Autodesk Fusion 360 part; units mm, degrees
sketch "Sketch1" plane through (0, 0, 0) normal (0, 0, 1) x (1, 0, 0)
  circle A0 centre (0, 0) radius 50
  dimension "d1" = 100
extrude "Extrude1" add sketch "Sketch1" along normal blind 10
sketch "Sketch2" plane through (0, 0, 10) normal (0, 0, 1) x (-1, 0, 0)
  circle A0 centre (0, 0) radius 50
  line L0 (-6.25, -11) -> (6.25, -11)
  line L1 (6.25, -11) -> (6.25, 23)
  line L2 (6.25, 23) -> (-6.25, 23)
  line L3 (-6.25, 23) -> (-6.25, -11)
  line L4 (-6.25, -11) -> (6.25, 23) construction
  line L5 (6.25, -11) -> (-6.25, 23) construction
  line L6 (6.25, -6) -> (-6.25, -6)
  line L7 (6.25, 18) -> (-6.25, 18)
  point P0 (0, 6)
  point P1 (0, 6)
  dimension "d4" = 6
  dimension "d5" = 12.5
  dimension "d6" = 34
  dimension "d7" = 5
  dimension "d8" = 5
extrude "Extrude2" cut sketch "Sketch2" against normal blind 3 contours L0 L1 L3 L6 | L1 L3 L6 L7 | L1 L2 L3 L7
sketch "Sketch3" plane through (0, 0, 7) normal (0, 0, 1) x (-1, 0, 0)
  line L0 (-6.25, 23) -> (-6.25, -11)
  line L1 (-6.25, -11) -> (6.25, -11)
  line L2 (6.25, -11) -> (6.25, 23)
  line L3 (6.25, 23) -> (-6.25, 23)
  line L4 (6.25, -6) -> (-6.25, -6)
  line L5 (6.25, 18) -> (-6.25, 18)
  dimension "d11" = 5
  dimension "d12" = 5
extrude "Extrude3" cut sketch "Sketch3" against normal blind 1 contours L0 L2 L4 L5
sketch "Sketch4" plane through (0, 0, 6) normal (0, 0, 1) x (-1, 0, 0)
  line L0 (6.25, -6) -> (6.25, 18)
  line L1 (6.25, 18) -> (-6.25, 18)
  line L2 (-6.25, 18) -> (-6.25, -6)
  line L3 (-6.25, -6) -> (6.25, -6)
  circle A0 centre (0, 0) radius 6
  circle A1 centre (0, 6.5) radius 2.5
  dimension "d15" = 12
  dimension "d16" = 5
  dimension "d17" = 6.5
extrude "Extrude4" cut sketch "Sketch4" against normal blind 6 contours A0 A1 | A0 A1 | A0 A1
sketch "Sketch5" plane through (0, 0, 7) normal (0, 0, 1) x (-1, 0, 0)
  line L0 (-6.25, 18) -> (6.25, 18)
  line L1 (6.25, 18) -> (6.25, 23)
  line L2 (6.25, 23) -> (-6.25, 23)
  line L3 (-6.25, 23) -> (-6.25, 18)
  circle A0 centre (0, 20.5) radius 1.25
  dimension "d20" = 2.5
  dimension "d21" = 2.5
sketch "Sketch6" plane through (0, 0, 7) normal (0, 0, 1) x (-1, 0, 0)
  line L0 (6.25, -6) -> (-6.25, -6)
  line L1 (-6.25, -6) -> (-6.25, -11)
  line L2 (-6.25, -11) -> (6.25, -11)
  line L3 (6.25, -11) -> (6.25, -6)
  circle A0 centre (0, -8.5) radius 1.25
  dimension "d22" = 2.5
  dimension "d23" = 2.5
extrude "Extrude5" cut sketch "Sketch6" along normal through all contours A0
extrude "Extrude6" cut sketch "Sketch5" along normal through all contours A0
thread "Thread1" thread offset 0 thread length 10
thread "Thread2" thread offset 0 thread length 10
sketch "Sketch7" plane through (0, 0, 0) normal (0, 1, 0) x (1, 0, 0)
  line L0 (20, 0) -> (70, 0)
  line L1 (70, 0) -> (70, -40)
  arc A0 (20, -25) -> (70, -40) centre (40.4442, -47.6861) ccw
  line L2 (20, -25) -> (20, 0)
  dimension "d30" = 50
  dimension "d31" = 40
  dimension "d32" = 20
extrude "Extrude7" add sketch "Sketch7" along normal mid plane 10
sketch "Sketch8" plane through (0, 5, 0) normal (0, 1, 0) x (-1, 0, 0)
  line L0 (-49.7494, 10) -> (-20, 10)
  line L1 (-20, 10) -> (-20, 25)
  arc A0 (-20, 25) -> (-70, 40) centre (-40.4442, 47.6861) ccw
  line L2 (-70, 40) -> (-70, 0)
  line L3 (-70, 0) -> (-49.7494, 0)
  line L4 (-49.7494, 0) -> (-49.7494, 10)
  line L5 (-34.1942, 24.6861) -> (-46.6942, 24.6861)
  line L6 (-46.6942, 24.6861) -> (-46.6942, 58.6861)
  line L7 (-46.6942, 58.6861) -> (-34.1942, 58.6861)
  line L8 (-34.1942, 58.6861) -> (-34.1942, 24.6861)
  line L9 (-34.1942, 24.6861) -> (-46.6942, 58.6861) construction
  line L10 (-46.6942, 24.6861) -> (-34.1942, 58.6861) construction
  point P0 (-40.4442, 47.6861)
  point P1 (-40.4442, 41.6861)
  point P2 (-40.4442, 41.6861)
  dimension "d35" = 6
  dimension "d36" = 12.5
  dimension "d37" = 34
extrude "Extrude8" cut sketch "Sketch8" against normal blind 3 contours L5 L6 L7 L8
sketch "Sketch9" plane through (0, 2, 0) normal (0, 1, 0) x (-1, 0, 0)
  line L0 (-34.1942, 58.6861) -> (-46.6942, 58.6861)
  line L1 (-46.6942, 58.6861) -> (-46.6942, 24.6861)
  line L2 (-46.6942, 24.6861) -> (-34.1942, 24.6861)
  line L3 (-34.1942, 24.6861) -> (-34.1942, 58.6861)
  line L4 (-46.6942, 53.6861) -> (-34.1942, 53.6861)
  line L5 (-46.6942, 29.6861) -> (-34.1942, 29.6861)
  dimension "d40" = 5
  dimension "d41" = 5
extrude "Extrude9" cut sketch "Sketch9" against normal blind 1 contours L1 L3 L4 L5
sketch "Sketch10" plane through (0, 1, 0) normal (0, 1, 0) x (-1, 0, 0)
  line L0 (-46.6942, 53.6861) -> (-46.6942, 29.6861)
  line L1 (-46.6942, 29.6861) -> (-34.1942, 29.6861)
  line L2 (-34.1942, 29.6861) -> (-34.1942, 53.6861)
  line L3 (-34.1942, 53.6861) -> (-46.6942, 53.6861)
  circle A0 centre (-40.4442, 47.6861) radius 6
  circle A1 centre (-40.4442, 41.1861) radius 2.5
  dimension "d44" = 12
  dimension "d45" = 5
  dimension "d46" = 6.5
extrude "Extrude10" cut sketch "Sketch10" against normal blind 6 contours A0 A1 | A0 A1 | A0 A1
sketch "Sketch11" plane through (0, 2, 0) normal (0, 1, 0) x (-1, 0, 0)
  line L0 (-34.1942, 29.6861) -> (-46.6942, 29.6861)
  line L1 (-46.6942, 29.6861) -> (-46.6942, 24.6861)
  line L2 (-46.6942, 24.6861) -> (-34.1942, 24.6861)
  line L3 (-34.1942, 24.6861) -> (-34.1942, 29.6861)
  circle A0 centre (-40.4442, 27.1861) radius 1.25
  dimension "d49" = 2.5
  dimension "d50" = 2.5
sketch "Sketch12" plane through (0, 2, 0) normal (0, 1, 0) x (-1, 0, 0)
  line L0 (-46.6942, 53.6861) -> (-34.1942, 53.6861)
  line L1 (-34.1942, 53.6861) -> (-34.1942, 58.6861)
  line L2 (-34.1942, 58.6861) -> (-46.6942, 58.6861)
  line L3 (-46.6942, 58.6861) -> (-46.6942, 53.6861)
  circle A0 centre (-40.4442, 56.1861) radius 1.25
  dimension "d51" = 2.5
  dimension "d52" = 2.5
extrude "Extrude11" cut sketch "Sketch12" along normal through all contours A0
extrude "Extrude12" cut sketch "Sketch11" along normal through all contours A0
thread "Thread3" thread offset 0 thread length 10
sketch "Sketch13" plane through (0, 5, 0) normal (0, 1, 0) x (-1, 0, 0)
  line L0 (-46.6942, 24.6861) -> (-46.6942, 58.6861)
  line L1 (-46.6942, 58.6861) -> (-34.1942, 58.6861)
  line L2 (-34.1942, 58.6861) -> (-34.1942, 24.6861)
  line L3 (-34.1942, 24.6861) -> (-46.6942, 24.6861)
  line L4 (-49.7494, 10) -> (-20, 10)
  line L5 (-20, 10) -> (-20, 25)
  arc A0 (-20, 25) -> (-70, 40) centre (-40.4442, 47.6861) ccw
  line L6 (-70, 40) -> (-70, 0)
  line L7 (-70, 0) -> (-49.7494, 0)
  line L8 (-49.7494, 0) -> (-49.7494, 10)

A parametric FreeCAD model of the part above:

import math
import FreeCAD as App
import Part
import Sketcher
from FreeCAD import Vector


def add_polygon(sketch, points):
    """Adds a closed chain of lines whose ends are joined by coincident constraints."""
    first, n = sketch.GeometryCount, len(points)
    for a, b in zip(points, points[1:] + points[:1]):
        sketch.addGeometry(Part.LineSegment(App.Vector(*a, 0), App.Vector(*b, 0)), False)
    for i in range(n):
        sketch.addConstraint(Sketcher.Constraint("Coincident", first + i, 2, first + (i + 1) % n, 1))

doc = App.newDocument("Part")
body = doc.addObject("PartDesign::Body", "Body")

# Sketch on XY plane
sketch1 = body.newObject("Sketcher::SketchObject", "Sketch")
sketch1.AttachmentSupport = (doc.getObject("XY_Plane"), [""])
sketch1.MapMode = "FlatFace"
sketch1.addGeometry(Part.Circle(Vector(0, 0, 0), Vector(0, 0, 1), 50), False)
sketch1.addConstraint(Sketcher.Constraint("Coincident", 0, 3, -1, 1))
sketch1.addConstraint(Sketcher.Constraint("Diameter", 0, 100.0))
pad1 = body.newObject("PartDesign::Pad", "Pad")
pad1.Profile = sketch1
pad1.Length = 10

# Sketch on XY plane
sketch2 = body.newObject("Sketcher::SketchObject", "Sketch001")
sketch2.AttachmentSupport = (doc.getObject("XY_Plane"), [""])
sketch2.MapMode = "FlatFace"
sketch2.AttachmentOffset = App.Placement(Vector(0, 0, 10), App.Rotation())
add_polygon(sketch2, [(6.25, 11), (-6.25, 11), (-6.25, -23), (6.25, -23)])  # lines 0-3
sketch2.addConstraint(Sketcher.Constraint("Horizontal", 0))
sketch2.addConstraint(Sketcher.Constraint("Vertical", 1))
sketch2.addConstraint(Sketcher.Constraint("Horizontal", 2))
sketch2.addConstraint(Sketcher.Constraint("Vertical", 3))
sketch2.addConstraint(Sketcher.Constraint("DistanceY", 1, 2, 1, 1, 34.0))
sketch2.addConstraint(Sketcher.Constraint("DistanceX", 0, 2, 0, 1, 12.5))
sketch2.addConstraint(Sketcher.Constraint("DistanceY", -1, 1, 0, 2, 11.0))
sketch2.addConstraint(Sketcher.Constraint("DistanceX", 0, 2, -1, 1, 6.25))
pocket1 = body.newObject("PartDesign::Pocket", "Pocket")
pocket1.Profile = sketch2
pocket1.Length = 3

# Sketch on XY plane
sketch3 = body.newObject("Sketcher::SketchObject", "Sketch002")
sketch3.AttachmentSupport = (doc.getObject("XY_Plane"), [""])
sketch3.MapMode = "FlatFace"
sketch3.AttachmentOffset = App.Placement(Vector(0, 0, 7), App.Rotation())
add_polygon(sketch3, [(-6.25, -18), (6.25, -18), (6.25, 6), (-6.25, 6)])  # lines 0-3
sketch3.addConstraint(Sketcher.Constraint("Horizontal", 0))
sketch3.addConstraint(Sketcher.Constraint("Vertical", 1))
sketch3.addConstraint(Sketcher.Constraint("Horizontal", 2))
sketch3.addConstraint(Sketcher.Constraint("Vertical", 3))
sketch3.addConstraint(Sketcher.Constraint("DistanceY", 1, 1, 1, 2, 24.0))
sketch3.addConstraint(Sketcher.Constraint("DistanceX", 0, 1, 0, 2, 12.5))
sketch3.addConstraint(Sketcher.Constraint("DistanceY", 0, 2, -1, 1, 18.0))
sketch3.addConstraint(Sketcher.Constraint("DistanceX", -1, 1, 0, 2, 6.25))
pocket2 = body.newObject("PartDesign::Pocket", "Pocket001")
pocket2.Profile = sketch3
pocket2.Length = 1

# Sketch on XY plane
sketch4 = body.newObject("Sketcher::SketchObject", "Sketch003")
sketch4.AttachmentSupport = (doc.getObject("XY_Plane"), [""])
sketch4.MapMode = "FlatFace"
sketch4.AttachmentOffset = App.Placement(Vector(0, 0, 6), App.Rotation())
sketch4.addGeometry(Part.ArcOfCircle(Part.Circle(Vector(0, 0, 0), Vector(0, 0, 1), 6), math.radians(-67.380135), math.radians(247.380135)), False)
sketch4.addGeometry(Part.ArcOfCircle(Part.Circle(Vector(0, -6.5, 0), Vector(0, 0, 1), 2.5), math.radians(157.380135), math.radians(382.619865)), False)
sketch4.addConstraint(Sketcher.Constraint("Coincident", 0, 1, 1, 2))
sketch4.addConstraint(Sketcher.Constraint("Coincident", 1, 1, 0, 2))
sketch4.addConstraint(Sketcher.Constraint("Coincident", 0, 3, -1, 1))
sketch4.addConstraint(Sketcher.Constraint("PointOnObject", 1, 3, -2))
sketch4.addConstraint(Sketcher.Constraint("Radius", 0, 6.0))
sketch4.addConstraint(Sketcher.Constraint("Radius", 1, 2.5))
sketch4.addConstraint(Sketcher.Constraint("DistanceY", 1, 3, -1, 1, 6.5))
pocket3 = body.newObject("PartDesign::Pocket", "Pocket002")
pocket3.Profile = sketch4
pocket3.Length = 6

# Sketch on XY plane
sketch5 = body.newObject("Sketcher::SketchObject", "Sketch004")
sketch5.AttachmentSupport = (doc.getObject("XY_Plane"), [""])
sketch5.MapMode = "FlatFace"
sketch5.AttachmentOffset = App.Placement(Vector(0, 0, 7), App.Rotation())
sketch5.addGeometry(Part.Circle(Vector(0, 8.5, 0), Vector(0, 0, 1), 1.25), False)
sketch5.addConstraint(Sketcher.Constraint("PointOnObject", 0, 3, -2))
sketch5.addConstraint(Sketcher.Constraint("Diameter", 0, 2.5))
sketch5.addConstraint(Sketcher.Constraint("DistanceY", -1, 1, 0, 3, 8.5))
pocket4 = body.newObject("PartDesign::Pocket", "Pocket003")
pocket4.Profile = sketch5
pocket4.Type = "ThroughAll"
pocket4.Reversed = True

# Sketch on XY plane
sketch6 = body.newObject("Sketcher::SketchObject", "Sketch005")
sketch6.AttachmentSupport = (doc.getObject("XY_Plane"), [""])
sketch6.MapMode = "FlatFace"
sketch6.AttachmentOffset = App.Placement(Vector(0, 0, 7), App.Rotation())
sketch6.addGeometry(Part.Circle(Vector(0, -20.5, 0), Vector(0, 0, 1), 1.25), False)
sketch6.addConstraint(Sketcher.Constraint("PointOnObject", 0, 3, -2))
sketch6.addConstraint(Sketcher.Constraint("Diameter", 0, 2.5))
sketch6.addConstraint(Sketcher.Constraint("DistanceY", 0, 3, -1, 1, 20.5))
pocket5 = body.newObject("PartDesign::Pocket", "Pocket004")
pocket5.Profile = sketch6
pocket5.Type = "ThroughAll"
pocket5.Reversed = True

# Sketch on XZ plane
sketch7 = body.newObject("Sketcher::SketchObject", "Sketch006")
sketch7.AttachmentSupport = (doc.getObject("XZ_Plane"), [""])
sketch7.MapMode = "FlatFace"
sketch7.addGeometry(Part.LineSegment(Vector(70, 0, 0), Vector(20, 0, 0)), False)
sketch7.addGeometry(Part.LineSegment(Vector(20, 0, 0), Vector(20, 25, 0)), False)
sketch7.addGeometry(Part.ArcOfCircle(Part.Circle(Vector(40.4442, 47.6861, 0), Vector(0, 0, 1), 30.538901), math.radians(-14.577107), math.radians(227.975539)), False)
sketch7.addGeometry(Part.LineSegment(Vector(70, 40, 0), Vector(70, 0, 0)), False)
sketch7.addConstraint(Sketcher.Constraint("Coincident", 0, 2, 1, 1))
sketch7.addConstraint(Sketcher.Constraint("Coincident", 1, 2, 2, 2))
sketch7.addConstraint(Sketcher.Constraint("Coincident", 2, 1, 3, 1))
sketch7.addConstraint(Sketcher.Constraint("Coincident", 3, 2, 0, 1))
sketch7.addConstraint(Sketcher.Constraint("Horizontal", 0))
sketch7.addConstraint(Sketcher.Constraint("Vertical", 1))
sketch7.addConstraint(Sketcher.Constraint("Vertical", 3))
sketch7.addConstraint(Sketcher.Constraint("PointOnObject", 0, 2, -1))
sketch7.addConstraint(Sketcher.Constraint("DistanceX", 0, 2, 0, 1, 50.0))
sketch7.addConstraint(Sketcher.Constraint("DistanceY", 3, 2, 3, 1, 40.0))
sketch7.addConstraint(Sketcher.Constraint("DistanceX", -1, 1, 0, 2, 20.0))
sketch7.addConstraint(Sketcher.Constraint("DistanceY", 1, 1, 1, 2, 25.0))
sketch7.addConstraint(Sketcher.Constraint("Radius", 2, 30.539))
pad2 = body.newObject("PartDesign::Pad", "Pad001")
pad2.Profile = sketch7
pad2.Length = 10
pad2.Midplane = True

# Sketch on XZ plane
sketch8 = body.newObject("Sketcher::SketchObject", "Sketch007")
sketch8.AttachmentSupport = (doc.getObject("XZ_Plane"), [""])
sketch8.MapMode = "FlatFace"
sketch8.AttachmentOffset = App.Placement(Vector(0, 0, -5), App.Rotation())
add_polygon(sketch8, [(46.6942, 24.6861), (34.1942, 24.6861), (34.1942, 58.6861), (46.6942, 58.6861)])  # lines 0-3
sketch8.addConstraint(Sketcher.Constraint("Horizontal", 0))
sketch8.addConstraint(Sketcher.Constraint("Vertical", 1))
sketch8.addConstraint(Sketcher.Constraint("Horizontal", 2))
sketch8.addConstraint(Sketcher.Constraint("Vertical", 3))
sketch8.addConstraint(Sketcher.Constraint("DistanceY", 1, 1, 1, 2, 34.0))
sketch8.addConstraint(Sketcher.Constraint("DistanceX", 0, 2, 0, 1, 12.5))
sketch8.addConstraint(Sketcher.Constraint("DistanceY", -1, 1, 0, 2, 24.686))
sketch8.addConstraint(Sketcher.Constraint("DistanceX", -1, 1, 0, 2, 34.1942))
pocket6 = body.newObject("PartDesign::Pocket", "Pocket005")
pocket6.Profile = sketch8
pocket6.Length = 3
pocket6.Reversed = True

# Sketch on XZ plane
sketch9 = body.newObject("Sketcher::SketchObject", "Sketch008")
sketch9.AttachmentSupport = (doc.getObject("XZ_Plane"), [""])
sketch9.MapMode = "FlatFace"
sketch9.AttachmentOffset = App.Placement(Vector(0, 0, -2), App.Rotation())
add_polygon(sketch9, [(34.1942, 29.6861), (34.1942, 53.6861), (46.6942, 53.6861), (46.6942, 29.6861)])  # lines 0-3
sketch9.addConstraint(Sketcher.Constraint("Vertical", 0))
sketch9.addConstraint(Sketcher.Constraint("Horizontal", 1))
sketch9.addConstraint(Sketcher.Constraint("Vertical", 2))
sketch9.addConstraint(Sketcher.Constraint("Horizontal", 3))
sketch9.addConstraint(Sketcher.Constraint("DistanceY", 0, 1, 0, 2, 24.0))
sketch9.addConstraint(Sketcher.Constraint("DistanceX", 1, 1, 1, 2, 12.5))
sketch9.addConstraint(Sketcher.Constraint("DistanceY", -1, 1, 0, 2, 53.686))
sketch9.addConstraint(Sketcher.Constraint("DistanceX", -1, 1, 0, 2, 34.1942))
pocket7 = body.newObject("PartDesign::Pocket", "Pocket006")
pocket7.Profile = sketch9
pocket7.Length = 1
pocket7.Reversed = True

# Sketch on XZ plane
sketch10 = body.newObject("Sketcher::SketchObject", "Sketch009")
sketch10.AttachmentSupport = (doc.getObject("XZ_Plane"), [""])
sketch10.MapMode = "FlatFace"
sketch10.AttachmentOffset = App.Placement(Vector(0, 0, -1), App.Rotation())
sketch10.addGeometry(Part.ArcOfCircle(Part.Circle(Vector(40.4442, 41.1861, 0), Vector(0, 0, 1), 2.5), math.radians(157.380135), math.radians(382.619865)), False)
sketch10.addGeometry(Part.ArcOfCircle(Part.Circle(Vector(40.4442, 47.6861, 0), Vector(0, 0, 1), 6), math.radians(-67.380135), math.radians(247.380135)), False)
sketch10.addConstraint(Sketcher.Constraint("Coincident", 0, 1, 1, 2))
sketch10.addConstraint(Sketcher.Constraint("Coincident", 1, 1, 0, 2))
sketch10.addConstraint(Sketcher.Constraint("Horizontal", 0, 1, 1, 1))
sketch10.addConstraint(Sketcher.Constraint("Radius", 1, 6.0))
sketch10.addConstraint(Sketcher.Constraint("Radius", 0, 2.5))
sketch10.addConstraint(Sketcher.Constraint("DistanceY", 0, 3, 1, 3, 6.5))
sketch10.addConstraint(Sketcher.Constraint("DistanceY", -1, 1, 0, 3, 41.186))
sketch10.addConstraint(Sketcher.Constraint("DistanceX", -1, 1, 1, 1, 42.752))
pocket8 = body.newObject("PartDesign::Pocket", "Pocket007")
pocket8.Profile = sketch10
pocket8.Length = 6
pocket8.Reversed = True

# Sketch on XZ plane
sketch11 = body.newObject("Sketcher::SketchObject", "Sketch010")
sketch11.AttachmentSupport = (doc.getObject("XZ_Plane"), [""])
sketch11.MapMode = "FlatFace"
sketch11.AttachmentOffset = App.Placement(Vector(0, 0, -2), App.Rotation())
sketch11.addGeometry(Part.Circle(Vector(40.4442, 56.1861, 0), Vector(0, 0, 1), 1.25), False)
sketch11.addConstraint(Sketcher.Constraint("Diameter", 0, 2.5))
sketch11.addConstraint(Sketcher.Constraint("DistanceY", -1, 1, 0, 3, 56.186))
sketch11.addConstraint(Sketcher.Constraint("DistanceX", -1, 1, 0, 3, 40.4442))
pocket9 = body.newObject("PartDesign::Pocket", "Pocket008")
pocket9.Profile = sketch11
pocket9.Type = "ThroughAll"

# Sketch on XZ plane
sketch12 = body.newObject("Sketcher::SketchObject", "Sketch011")
sketch12.AttachmentSupport = (doc.getObject("XZ_Plane"), [""])
sketch12.MapMode = "FlatFace"
sketch12.AttachmentOffset = App.Placement(Vector(0, 0, -2), App.Rotation())
sketch12.addGeometry(Part.Circle(Vector(40.4442, 27.1861, 0), Vector(0, 0, 1), 1.25), False)
sketch12.addConstraint(Sketcher.Constraint("Diameter", 0, 2.5))
sketch12.addConstraint(Sketcher.Constraint("DistanceY", -1, 1, 0, 3, 27.186))
sketch12.addConstraint(Sketcher.Constraint("DistanceX", -1, 1, 0, 3, 40.4442))
pocket10 = body.newObject("PartDesign::Pocket", "Pocket009")
pocket10.Profile = sketch12
pocket10.Type = "ThroughAll"

doc.recompute()
